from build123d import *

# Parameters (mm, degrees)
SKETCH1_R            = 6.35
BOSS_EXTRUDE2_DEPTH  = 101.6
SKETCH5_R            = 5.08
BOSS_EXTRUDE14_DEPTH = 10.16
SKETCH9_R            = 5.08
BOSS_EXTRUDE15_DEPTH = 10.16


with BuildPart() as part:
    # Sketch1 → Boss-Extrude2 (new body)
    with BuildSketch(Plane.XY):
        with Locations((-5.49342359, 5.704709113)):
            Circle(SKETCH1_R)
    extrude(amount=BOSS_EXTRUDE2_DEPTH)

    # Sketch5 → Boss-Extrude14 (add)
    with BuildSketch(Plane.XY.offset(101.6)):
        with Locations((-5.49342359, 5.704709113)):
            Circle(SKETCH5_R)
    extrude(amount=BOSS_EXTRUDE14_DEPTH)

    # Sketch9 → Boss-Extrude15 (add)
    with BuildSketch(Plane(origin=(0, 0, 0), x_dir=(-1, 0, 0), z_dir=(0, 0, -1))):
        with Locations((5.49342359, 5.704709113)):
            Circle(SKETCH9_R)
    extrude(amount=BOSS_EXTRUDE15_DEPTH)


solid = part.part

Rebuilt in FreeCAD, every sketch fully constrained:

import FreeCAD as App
import Part
import Sketcher
Q = App.Units.Quantity

doc = App.newDocument("Part")
params = doc.addObject("Spreadsheet::Sheet", "Params")
for row, (alias, value) in enumerate([
    ("sketch1_diameter", "0.5 in"),
    ("pad1_length", "4 in"),
    ("sketch2_diameter", "0.4 in"),
    ("pad2_length", "0.4 in"),
    ("sketch3_diameter", "0.4 in"),
    ("pad3_length", "0.4 in"),
], start=1):
    params.set(f"A{row}", alias)
    params.set(f"B{row}", "=" + value)
    params.setAlias(f"B{row}", alias)

body = doc.addObject("PartDesign::Body", "Body")

# Sketch on XY plane
sketch1 = doc.addObject("Sketcher::SketchObject", "Sketch")
body.addObject(sketch1)
sketch1.AttachmentSupport = (doc.XY_Plane, [""])
sketch1.MapMode = "FlatFace"
sketch1.addGeometry(Part.Circle(App.Vector(-5, 6, 0), App.Vector(0, 0, 1), 6), False)
sketch1.addConstraint(Sketcher.Constraint("Diameter", 0, Q("0.5 in")))
sketch1.addConstraint(Sketcher.Constraint("DistanceY", -1, 1, 0, 3, Q("5.704709 mm")))
sketch1.addConstraint(Sketcher.Constraint("DistanceX", 0, 3, -1, 1, Q("5.493424 mm")))
sketch1.setExpression("Constraints[0]", "Params.sketch1_diameter")
pad1 = doc.addObject("PartDesign::Pad", "Pad")
body.addObject(pad1)
pad1.Profile = sketch1
pad1.setExpression("Length", "Params.pad1_length")

# Sketch on XY plane
sketch2 = doc.addObject("Sketcher::SketchObject", "Sketch001")
body.addObject(sketch2)
sketch2.AttachmentSupport = (doc.XY_Plane, [""])
sketch2.MapMode = "FlatFace"
sketch2.AttachmentOffset = App.Placement(App.Vector(0, 0, 4 * 25.4), App.Rotation())
sketch2.addGeometry(Part.Circle(App.Vector(-5, 6, 0), App.Vector(0, 0, 1), 5), False)
sketch2.addConstraint(Sketcher.Constraint("Diameter", 0, Q("0.4 in")))
sketch2.addConstraint(Sketcher.Constraint("DistanceY", -1, 1, 0, 3, Q("5.704709 mm")))
sketch2.addConstraint(Sketcher.Constraint("DistanceX", 0, 3, -1, 1, Q("5.493424 mm")))
sketch2.setExpression("Constraints[0]", "Params.sketch2_diameter")
pad2 = doc.addObject("PartDesign::Pad", "Pad001")
body.addObject(pad2)
pad2.Profile = sketch2
pad2.setExpression("Length", "Params.pad2_length")

# Sketch on XY plane
sketch3 = doc.addObject("Sketcher::SketchObject", "Sketch002")
body.addObject(sketch3)
sketch3.AttachmentSupport = (doc.XY_Plane, [""])
sketch3.MapMode = "FlatFace"
sketch3.addGeometry(Part.Circle(App.Vector(-5, 6, 0), App.Vector(0, 0, 1), 5), False)
sketch3.addConstraint(Sketcher.Constraint("Diameter", 0, Q("0.4 in")))
sketch3.addConstraint(Sketcher.Constraint("DistanceY", -1, 1, 0, 3, Q("5.704709 mm")))
sketch3.addConstraint(Sketcher.Constraint("DistanceX", 0, 3, -1, 1, Q("5.493424 mm")))
sketch3.setExpression("Constraints[0]", "Params.sketch3_diameter")
pad3 = doc.addObject("PartDesign::Pad", "Pad002")
body.addObject(pad3)
pad3.Profile = sketch3
pad3.setExpression("Length", "Params.pad3_length")
pad3.Reversed = True

doc.recompute()
